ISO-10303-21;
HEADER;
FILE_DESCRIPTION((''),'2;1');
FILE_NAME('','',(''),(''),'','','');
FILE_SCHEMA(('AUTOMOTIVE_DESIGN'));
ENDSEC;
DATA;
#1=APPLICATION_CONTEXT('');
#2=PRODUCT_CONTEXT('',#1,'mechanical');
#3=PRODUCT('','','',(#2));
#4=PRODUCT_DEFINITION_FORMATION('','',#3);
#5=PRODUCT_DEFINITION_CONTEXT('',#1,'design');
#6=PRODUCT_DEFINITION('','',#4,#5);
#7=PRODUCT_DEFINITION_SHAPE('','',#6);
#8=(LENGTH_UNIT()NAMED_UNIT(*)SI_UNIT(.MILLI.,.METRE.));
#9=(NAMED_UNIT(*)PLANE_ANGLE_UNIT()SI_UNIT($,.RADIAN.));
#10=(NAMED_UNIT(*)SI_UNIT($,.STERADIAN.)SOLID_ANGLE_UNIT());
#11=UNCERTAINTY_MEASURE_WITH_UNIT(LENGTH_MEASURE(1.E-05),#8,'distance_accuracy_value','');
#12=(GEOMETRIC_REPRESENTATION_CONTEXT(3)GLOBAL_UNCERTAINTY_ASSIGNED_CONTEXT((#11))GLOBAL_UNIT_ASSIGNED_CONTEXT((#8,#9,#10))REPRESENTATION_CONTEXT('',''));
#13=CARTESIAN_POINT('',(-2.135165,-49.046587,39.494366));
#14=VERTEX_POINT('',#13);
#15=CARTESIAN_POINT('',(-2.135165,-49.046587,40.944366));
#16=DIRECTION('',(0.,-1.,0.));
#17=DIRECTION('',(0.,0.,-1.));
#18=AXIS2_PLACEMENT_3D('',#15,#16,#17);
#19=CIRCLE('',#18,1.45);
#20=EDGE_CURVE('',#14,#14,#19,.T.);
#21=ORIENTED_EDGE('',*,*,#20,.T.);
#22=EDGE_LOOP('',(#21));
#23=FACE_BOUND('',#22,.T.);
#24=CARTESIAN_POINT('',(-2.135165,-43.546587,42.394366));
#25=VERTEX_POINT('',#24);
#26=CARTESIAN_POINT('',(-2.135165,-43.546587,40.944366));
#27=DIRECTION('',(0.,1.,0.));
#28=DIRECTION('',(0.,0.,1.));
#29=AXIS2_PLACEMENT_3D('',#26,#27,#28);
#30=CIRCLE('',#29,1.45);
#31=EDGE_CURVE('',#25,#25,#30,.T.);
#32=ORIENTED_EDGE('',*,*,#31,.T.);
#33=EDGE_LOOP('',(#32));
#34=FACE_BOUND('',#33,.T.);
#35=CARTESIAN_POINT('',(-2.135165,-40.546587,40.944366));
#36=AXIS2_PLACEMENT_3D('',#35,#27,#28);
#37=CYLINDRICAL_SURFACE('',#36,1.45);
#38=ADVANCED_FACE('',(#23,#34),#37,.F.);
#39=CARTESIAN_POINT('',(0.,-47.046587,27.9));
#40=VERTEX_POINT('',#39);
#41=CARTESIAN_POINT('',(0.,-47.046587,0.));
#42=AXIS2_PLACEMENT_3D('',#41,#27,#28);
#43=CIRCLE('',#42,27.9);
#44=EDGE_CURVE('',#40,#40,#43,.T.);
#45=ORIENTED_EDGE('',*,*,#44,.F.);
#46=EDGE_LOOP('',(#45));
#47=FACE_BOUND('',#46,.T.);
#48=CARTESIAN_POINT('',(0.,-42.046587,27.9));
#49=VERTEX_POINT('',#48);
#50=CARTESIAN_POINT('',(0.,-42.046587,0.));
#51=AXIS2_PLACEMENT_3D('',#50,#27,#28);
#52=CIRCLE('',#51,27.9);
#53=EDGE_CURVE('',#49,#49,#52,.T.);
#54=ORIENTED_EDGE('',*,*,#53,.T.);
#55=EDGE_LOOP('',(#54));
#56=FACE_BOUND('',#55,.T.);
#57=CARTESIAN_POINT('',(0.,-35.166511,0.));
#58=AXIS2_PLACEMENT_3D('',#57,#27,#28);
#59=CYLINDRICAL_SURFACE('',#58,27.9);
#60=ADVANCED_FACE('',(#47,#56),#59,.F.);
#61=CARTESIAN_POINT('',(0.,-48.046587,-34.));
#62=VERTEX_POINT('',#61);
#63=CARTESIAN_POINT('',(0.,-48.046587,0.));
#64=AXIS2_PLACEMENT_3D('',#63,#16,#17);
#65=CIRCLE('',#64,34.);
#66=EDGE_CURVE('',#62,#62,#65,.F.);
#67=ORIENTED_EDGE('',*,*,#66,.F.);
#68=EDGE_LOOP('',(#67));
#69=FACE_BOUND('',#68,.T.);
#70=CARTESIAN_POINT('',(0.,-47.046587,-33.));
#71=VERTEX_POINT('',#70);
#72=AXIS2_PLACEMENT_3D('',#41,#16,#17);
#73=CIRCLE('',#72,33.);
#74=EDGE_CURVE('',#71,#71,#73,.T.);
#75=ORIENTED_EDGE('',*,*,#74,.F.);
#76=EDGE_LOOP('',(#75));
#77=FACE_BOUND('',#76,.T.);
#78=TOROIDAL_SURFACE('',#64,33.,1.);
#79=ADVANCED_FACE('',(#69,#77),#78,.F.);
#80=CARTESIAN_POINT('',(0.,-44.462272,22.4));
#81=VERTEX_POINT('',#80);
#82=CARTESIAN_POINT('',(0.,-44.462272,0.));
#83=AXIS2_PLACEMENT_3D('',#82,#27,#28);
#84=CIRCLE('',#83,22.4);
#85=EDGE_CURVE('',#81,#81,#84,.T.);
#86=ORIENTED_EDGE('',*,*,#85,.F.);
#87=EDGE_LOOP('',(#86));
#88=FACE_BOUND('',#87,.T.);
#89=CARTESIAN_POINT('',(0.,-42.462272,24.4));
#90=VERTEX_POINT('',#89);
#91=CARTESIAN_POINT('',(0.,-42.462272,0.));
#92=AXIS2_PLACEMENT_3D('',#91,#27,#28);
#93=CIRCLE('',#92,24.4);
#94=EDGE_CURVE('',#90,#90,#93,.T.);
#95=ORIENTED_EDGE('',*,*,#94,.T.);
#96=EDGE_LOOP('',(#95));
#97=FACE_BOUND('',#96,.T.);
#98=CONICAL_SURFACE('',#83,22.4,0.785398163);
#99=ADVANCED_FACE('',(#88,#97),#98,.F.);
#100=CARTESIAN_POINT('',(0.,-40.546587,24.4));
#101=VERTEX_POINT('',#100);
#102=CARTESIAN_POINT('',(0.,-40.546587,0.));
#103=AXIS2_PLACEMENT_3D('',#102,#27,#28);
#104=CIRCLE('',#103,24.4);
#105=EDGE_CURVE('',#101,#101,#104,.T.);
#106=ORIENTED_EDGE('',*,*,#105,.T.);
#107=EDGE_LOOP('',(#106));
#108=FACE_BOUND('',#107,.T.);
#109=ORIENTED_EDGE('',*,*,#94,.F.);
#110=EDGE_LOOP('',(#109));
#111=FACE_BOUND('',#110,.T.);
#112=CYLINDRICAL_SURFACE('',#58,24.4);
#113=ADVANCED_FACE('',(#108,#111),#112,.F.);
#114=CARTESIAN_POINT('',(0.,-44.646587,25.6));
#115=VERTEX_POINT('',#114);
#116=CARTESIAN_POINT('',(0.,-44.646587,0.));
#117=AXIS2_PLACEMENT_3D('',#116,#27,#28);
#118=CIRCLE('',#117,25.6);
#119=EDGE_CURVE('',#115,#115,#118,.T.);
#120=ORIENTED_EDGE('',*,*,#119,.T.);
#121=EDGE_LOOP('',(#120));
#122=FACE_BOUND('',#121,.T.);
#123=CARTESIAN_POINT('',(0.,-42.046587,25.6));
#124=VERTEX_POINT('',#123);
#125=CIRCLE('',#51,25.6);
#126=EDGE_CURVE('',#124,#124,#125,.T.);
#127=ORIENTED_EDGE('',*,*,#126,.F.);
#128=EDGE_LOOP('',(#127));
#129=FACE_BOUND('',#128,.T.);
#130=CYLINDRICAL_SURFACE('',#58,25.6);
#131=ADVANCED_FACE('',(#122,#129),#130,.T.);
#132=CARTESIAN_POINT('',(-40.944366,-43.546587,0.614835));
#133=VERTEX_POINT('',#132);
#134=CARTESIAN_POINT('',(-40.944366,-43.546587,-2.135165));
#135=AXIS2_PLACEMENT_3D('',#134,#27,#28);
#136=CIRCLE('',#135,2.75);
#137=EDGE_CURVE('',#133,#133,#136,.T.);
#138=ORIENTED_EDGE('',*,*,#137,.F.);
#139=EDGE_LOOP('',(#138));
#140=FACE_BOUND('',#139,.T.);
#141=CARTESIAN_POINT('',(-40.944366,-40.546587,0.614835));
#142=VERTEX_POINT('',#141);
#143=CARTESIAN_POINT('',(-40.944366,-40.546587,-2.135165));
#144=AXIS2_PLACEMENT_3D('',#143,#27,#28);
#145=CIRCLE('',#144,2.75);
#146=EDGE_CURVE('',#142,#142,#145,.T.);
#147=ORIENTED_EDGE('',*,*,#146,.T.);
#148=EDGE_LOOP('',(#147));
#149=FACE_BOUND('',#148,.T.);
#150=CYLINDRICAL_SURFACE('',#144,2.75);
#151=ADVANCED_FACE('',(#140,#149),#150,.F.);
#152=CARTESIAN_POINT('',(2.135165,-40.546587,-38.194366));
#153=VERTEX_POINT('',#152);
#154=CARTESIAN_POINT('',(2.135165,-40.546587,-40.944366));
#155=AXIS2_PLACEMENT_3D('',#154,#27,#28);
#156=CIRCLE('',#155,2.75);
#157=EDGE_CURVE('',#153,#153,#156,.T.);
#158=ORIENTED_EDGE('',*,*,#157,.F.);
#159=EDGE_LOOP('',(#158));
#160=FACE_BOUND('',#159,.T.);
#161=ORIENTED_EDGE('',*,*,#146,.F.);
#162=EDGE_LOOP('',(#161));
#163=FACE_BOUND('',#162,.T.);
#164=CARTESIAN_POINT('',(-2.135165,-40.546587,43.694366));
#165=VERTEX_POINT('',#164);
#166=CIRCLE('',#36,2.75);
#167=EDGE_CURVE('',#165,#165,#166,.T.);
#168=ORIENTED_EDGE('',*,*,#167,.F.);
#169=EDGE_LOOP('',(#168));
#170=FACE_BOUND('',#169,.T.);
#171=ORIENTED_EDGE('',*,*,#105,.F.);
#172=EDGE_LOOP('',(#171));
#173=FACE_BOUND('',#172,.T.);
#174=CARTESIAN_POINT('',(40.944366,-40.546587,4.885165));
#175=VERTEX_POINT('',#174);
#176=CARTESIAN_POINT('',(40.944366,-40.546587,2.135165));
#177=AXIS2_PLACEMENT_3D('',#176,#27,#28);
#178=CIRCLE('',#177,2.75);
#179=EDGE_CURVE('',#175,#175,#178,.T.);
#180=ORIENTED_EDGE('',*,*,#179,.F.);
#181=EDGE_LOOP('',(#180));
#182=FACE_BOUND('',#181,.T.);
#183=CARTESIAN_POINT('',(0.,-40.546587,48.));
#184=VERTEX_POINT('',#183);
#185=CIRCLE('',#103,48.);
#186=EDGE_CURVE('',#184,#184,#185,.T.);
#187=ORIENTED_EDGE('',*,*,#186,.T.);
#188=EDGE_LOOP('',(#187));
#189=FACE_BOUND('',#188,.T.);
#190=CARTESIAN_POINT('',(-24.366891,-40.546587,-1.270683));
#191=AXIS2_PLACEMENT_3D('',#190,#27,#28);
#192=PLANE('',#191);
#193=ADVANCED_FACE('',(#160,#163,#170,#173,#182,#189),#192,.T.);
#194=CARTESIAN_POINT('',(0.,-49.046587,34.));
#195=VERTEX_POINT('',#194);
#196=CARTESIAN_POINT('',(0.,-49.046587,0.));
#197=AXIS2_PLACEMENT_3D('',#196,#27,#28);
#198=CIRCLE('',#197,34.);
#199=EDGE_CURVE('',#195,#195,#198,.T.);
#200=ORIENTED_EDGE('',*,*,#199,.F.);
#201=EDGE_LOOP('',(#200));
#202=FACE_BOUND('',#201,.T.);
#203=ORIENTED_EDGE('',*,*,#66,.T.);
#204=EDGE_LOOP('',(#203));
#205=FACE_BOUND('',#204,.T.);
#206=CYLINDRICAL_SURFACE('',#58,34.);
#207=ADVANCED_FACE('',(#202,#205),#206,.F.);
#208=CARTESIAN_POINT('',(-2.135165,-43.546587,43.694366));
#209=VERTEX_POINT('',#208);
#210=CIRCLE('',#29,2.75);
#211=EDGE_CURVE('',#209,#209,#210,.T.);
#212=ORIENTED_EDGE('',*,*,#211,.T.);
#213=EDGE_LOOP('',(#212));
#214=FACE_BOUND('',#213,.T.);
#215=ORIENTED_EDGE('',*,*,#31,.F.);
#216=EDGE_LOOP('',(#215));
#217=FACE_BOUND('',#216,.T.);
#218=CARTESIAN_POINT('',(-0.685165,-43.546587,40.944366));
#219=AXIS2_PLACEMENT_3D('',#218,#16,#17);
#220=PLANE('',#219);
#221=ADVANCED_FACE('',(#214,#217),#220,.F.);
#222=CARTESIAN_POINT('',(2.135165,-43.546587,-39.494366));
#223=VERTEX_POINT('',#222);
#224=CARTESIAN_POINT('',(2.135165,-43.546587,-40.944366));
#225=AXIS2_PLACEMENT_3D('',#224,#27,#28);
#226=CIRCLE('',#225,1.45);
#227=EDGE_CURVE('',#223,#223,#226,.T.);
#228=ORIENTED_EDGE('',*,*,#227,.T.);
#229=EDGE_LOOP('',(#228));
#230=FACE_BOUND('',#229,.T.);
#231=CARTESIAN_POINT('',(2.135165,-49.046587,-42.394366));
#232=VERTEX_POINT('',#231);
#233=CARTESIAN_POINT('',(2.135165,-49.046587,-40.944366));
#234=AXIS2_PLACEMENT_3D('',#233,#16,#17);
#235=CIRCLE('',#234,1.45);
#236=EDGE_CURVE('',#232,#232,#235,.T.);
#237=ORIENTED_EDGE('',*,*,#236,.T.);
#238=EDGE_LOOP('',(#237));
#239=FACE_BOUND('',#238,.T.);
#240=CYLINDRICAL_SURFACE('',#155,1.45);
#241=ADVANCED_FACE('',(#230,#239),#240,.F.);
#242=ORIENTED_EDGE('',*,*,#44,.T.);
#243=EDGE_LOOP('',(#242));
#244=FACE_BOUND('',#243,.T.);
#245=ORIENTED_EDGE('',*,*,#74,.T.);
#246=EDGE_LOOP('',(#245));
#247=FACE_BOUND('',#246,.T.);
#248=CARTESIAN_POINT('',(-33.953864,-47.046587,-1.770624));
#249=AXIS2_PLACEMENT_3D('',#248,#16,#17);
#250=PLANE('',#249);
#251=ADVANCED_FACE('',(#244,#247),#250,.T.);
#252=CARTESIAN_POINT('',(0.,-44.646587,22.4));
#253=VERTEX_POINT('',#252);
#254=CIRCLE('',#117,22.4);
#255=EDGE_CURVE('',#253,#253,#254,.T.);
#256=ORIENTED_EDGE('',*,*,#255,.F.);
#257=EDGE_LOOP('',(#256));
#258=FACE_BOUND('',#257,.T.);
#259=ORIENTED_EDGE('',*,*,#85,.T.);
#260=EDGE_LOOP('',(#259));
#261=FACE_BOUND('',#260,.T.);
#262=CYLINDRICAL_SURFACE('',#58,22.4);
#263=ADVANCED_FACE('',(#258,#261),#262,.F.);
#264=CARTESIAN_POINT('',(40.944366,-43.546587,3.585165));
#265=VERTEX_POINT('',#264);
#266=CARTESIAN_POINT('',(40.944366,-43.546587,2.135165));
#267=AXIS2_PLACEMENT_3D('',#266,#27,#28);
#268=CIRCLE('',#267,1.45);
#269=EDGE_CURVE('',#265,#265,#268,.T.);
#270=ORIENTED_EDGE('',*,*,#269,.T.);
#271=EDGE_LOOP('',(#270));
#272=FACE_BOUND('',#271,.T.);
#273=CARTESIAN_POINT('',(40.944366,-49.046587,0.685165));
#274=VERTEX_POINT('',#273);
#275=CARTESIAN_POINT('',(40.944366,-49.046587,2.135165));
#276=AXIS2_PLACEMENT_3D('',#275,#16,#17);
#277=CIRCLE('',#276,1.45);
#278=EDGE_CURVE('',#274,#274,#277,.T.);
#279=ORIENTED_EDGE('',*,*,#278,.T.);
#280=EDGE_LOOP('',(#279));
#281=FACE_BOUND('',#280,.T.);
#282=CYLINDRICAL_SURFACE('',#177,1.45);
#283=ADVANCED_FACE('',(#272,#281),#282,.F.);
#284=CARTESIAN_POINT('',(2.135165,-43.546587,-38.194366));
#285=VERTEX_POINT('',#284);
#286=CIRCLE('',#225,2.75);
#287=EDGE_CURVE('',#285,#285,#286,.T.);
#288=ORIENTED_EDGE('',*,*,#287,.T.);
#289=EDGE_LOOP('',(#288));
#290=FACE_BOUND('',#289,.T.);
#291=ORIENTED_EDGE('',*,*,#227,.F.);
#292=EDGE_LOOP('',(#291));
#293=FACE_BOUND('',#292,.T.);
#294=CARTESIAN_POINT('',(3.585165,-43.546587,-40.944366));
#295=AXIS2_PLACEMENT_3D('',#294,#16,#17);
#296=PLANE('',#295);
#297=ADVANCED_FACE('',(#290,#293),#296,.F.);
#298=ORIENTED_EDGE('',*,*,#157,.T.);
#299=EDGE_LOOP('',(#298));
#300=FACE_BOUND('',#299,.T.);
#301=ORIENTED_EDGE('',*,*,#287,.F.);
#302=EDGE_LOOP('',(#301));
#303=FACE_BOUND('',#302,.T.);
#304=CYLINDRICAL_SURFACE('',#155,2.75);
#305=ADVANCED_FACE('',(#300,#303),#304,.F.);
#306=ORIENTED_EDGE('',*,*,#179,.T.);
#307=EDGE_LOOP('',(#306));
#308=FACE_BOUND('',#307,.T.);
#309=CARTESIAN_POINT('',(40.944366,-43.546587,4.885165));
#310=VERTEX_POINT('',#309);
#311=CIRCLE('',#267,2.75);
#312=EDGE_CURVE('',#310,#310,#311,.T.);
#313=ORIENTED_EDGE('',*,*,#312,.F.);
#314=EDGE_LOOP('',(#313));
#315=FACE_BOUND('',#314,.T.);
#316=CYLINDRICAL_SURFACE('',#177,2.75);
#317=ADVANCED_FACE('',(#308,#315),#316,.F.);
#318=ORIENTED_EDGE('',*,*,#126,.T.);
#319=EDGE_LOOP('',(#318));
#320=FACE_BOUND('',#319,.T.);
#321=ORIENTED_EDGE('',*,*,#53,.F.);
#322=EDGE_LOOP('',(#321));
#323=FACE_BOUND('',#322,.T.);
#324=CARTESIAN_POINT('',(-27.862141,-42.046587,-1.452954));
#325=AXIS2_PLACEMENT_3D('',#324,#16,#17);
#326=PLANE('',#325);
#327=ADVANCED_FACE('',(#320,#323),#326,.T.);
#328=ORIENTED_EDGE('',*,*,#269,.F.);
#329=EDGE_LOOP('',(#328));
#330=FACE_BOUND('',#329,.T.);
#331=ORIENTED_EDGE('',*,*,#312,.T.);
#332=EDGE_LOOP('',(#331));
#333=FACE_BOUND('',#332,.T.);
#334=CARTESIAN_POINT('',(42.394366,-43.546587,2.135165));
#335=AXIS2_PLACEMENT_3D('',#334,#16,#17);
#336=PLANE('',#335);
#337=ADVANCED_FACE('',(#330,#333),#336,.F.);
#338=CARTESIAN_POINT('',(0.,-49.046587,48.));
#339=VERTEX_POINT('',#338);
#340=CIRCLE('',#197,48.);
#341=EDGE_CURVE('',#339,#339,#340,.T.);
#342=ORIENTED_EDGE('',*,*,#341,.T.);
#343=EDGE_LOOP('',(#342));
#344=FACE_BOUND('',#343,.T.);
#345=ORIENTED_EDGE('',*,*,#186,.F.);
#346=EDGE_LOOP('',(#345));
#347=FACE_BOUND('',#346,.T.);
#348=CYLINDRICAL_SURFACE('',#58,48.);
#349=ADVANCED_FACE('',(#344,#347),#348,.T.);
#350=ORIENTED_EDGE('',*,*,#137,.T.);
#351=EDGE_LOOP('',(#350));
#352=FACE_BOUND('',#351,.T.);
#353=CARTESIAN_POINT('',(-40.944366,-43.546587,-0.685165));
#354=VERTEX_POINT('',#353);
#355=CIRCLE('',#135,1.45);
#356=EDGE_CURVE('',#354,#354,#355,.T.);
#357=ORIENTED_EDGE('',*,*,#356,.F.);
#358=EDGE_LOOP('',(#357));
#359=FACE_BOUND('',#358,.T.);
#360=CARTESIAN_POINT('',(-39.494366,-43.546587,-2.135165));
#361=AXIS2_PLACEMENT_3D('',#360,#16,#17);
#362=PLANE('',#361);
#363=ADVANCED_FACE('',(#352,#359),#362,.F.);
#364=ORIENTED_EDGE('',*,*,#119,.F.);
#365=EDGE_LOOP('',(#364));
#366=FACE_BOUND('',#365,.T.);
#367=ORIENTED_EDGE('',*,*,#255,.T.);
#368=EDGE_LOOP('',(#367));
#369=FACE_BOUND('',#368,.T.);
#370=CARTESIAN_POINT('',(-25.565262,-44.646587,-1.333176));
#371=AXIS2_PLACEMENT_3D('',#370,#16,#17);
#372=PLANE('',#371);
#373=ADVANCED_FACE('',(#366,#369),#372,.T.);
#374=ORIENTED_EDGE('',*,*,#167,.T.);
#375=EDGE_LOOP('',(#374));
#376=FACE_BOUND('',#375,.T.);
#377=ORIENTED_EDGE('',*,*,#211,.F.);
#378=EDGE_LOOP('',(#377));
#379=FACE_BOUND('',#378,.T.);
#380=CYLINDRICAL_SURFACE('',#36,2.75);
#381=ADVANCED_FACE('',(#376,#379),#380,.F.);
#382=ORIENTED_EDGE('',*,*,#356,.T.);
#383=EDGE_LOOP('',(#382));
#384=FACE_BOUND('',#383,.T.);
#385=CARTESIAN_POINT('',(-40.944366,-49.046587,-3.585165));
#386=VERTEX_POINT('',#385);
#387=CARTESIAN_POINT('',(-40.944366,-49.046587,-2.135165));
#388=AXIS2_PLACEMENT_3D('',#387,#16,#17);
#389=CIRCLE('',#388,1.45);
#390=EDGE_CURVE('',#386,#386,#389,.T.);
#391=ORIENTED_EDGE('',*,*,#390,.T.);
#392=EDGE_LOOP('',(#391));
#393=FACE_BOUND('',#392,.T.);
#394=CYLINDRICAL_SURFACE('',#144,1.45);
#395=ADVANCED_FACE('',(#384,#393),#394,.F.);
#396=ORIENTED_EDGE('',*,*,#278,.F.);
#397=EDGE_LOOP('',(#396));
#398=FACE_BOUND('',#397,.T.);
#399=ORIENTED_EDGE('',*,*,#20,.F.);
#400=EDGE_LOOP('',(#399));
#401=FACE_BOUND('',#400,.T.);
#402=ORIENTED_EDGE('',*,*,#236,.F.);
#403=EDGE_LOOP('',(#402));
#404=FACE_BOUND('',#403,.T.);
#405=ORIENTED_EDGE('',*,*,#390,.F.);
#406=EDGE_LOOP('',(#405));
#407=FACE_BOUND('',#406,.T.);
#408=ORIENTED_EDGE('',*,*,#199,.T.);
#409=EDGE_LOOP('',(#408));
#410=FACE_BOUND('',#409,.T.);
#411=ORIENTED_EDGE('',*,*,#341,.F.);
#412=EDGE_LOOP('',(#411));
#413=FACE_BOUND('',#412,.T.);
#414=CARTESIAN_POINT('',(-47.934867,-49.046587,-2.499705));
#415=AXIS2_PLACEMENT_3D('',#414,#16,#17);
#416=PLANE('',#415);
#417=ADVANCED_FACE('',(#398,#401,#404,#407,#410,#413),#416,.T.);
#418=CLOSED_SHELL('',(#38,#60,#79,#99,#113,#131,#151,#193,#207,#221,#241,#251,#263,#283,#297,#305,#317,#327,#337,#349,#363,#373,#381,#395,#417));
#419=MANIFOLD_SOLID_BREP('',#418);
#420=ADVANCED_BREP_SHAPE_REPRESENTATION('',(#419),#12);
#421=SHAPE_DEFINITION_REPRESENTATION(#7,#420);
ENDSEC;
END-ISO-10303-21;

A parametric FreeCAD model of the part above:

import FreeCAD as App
import Part
import Sketcher
from FreeCAD import Vector
Q = App.Units.Quantity


def edges_at(feature, points):
    """Names of the edges that pass closest to the given points."""
    edges = feature.Shape.Edges
    near = lambda p: min(range(len(edges)), key=lambda i: edges[i].distToShape(Part.Vertex(*p))[0])
    return sorted({f"Edge{near(p) + 1}" for p in points})


def add_polygon(sketch, points):
    """Adds a closed chain of lines whose ends are joined by coincident constraints."""
    first, n = sketch.GeometryCount, len(points)
    for a, b in zip(points, points[1:] + points[:1]):
        sketch.addGeometry(Part.LineSegment(App.Vector(*a, 0), App.Vector(*b, 0)), False)
    for i in range(n):
        sketch.addConstraint(Sketcher.Constraint("Coincident", first + i, 2, first + (i + 1) % n, 1))

doc = App.newDocument("Part")
body = doc.addObject("PartDesign::Body", "Body")

sketch1 = doc.addObject("Sketcher::SketchObject", "Sketch")
body.addObject(sketch1)
sketch1.Placement = App.Placement(Vector(0, -49.046587, 0), App.Rotation(Vector(0.998643063, 0, 0.052077189), Vector(0, 1.000000001, 0), Vector(-0.052077189, 0, 0.998643063), "ZXY"))
add_polygon(sketch1, [(-25.6, 4.4), (-22.4, 4.4), (-22.4, 4.58), (-24.4, 6.58), (-24.4, 8.5), (-48, 8.5), (-48, 0), (-34, 0), (-34, 2), (-27.9, 2), (-27.9, 7), (-25.6, 7)])
sketch1.addConstraint(Sketcher.Constraint("Horizontal", 0))
sketch1.addConstraint(Sketcher.Constraint("Vertical", 1))
sketch1.addConstraint(Sketcher.Constraint("Vertical", 3))
sketch1.addConstraint(Sketcher.Constraint("Horizontal", 4))
sketch1.addConstraint(Sketcher.Constraint("Vertical", 5))
sketch1.addConstraint(Sketcher.Constraint("Horizontal", 6))
sketch1.addConstraint(Sketcher.Constraint("Vertical", 7))
sketch1.addConstraint(Sketcher.Constraint("Horizontal", 8))
sketch1.addConstraint(Sketcher.Constraint("Vertical", 9))
sketch1.addConstraint(Sketcher.Constraint("Horizontal", 10))
sketch1.addConstraint(Sketcher.Constraint("Vertical", 11))
sketch1.addConstraint(Sketcher.Constraint("PointOnObject", 5, 2, -1))
sketch1.addConstraint(Sketcher.Constraint("DistanceX", 6, 1, 6, 2, 14.0))
sketch1.addConstraint(Sketcher.Constraint("DistanceY", 7, 1, 7, 2, 2.0))
sketch1.addConstraint(Sketcher.Constraint("DistanceY", 9, 1, 9, 2, 5.0))
sketch1.addConstraint(Sketcher.Constraint("Angle", 2, Q("135 deg")))
sketch1.addConstraint(Sketcher.Constraint("DistanceX", 0, 1, 0, 2, 3.2))
sketch1.addConstraint(Sketcher.Constraint("DistanceX", 4, 2, 4, 1, 23.6))
sketch1.addConstraint(Sketcher.Constraint("DistanceX", 8, 1, 8, 2, 6.1))
sketch1.addConstraint(Sketcher.Constraint("DistanceX", 10, 1, 10, 2, 2.3))
sketch1.addConstraint(Sketcher.Constraint("DistanceY", 5, 2, 5, 1, 8.5))
sketch1.addConstraint(Sketcher.Constraint("DistanceY", 11, 2, 11, 1, 2.6))
sketch1.addConstraint(Sketcher.Constraint("DistanceX", 4, 2, -1, 1, 48.0))
sketch1.addConstraint(Sketcher.Constraint("DistanceY", 1, 1, 1, 2, 0.184315))
revolution = doc.addObject("PartDesign::Revolution", "Revolution")
body.addObject(revolution)
revolution.Profile = sketch1
revolution.ReferenceAxis = (sketch1, ["V_Axis"])
revolution.Angle = 360
doc.recompute()

fillet = doc.addObject("PartDesign::Fillet", "Fillet")
body.addObject(fillet)
fillet.Base = (revolution, edges_at(revolution, [(0, -47.047, -34)]))
fillet.Radius = 1

sketch2 = doc.addObject("Sketcher::SketchObject", "Sketch001")
body.addObject(sketch2)
sketch2.AttachmentSupport = (doc.XZ_Plane, [""])
sketch2.MapMode = "FlatFace"
sketch2.AttachmentOffset = App.Placement(Vector(0, 0, 40.546587), App.Rotation())
sketch2.addGeometry(Part.Circle(Vector(2.1, -40.9, 0), Vector(0, 0, 1), 1.4), False)
sketch2.addGeometry(Part.Circle(Vector(40.9, 2.1, 0), Vector(0, 0, 1), 1.4), False)
sketch2.addGeometry(Part.Circle(Vector(-40.9, -2.1, 0), Vector(0, 0, 1), 1.4), False)
sketch2.addGeometry(Part.Circle(Vector(-2.1, 40.9, 0), Vector(0, 0, 1), 1.4), False)
sketch2.addConstraint(Sketcher.Constraint("Equal", 0, 1))
sketch2.addConstraint(Sketcher.Constraint("Equal", 1, 2))
sketch2.addConstraint(Sketcher.Constraint("Equal", 2, 3))
sketch2.addConstraint(Sketcher.Constraint("Symmetric", 1, 3, 2, 3, -1, 1))
sketch2.addConstraint(Sketcher.Constraint("Symmetric", 0, 3, 3, 3, -1, 1))
sketch2.addConstraint(Sketcher.Constraint("Diameter", 0, 2.9))
sketch2.addConstraint(Sketcher.Constraint("DistanceX", 0, 3, 1, 3, 38.809201))
sketch2.addConstraint(Sketcher.Constraint("DistanceY", 0, 3, 2, 3, 38.809201))
sketch2.addConstraint(Sketcher.Constraint("DistanceY", 0, 3, 1, 3, 43.07953))
sketch2.addConstraint(Sketcher.Constraint("DistanceX", 2, 3, 0, 3, 43.07953))
doc.recompute()
hole = doc.addObject("PartDesign::Hole", "Hole")
body.addObject(hole)
hole.Profile = sketch2
hole.ThreadType = "None"
hole.Diameter = 2.9
hole.DepthType = "Dimension"
hole.Depth = 10
hole.DrillPoint = "Angled"
hole.DrillPointAngle = 118
hole.HoleCutType = "Counterbore"
hole.HoleCutDiameter = 5.5
hole.HoleCutDepth = 3
hole.Reversed = True

doc.recompute()
